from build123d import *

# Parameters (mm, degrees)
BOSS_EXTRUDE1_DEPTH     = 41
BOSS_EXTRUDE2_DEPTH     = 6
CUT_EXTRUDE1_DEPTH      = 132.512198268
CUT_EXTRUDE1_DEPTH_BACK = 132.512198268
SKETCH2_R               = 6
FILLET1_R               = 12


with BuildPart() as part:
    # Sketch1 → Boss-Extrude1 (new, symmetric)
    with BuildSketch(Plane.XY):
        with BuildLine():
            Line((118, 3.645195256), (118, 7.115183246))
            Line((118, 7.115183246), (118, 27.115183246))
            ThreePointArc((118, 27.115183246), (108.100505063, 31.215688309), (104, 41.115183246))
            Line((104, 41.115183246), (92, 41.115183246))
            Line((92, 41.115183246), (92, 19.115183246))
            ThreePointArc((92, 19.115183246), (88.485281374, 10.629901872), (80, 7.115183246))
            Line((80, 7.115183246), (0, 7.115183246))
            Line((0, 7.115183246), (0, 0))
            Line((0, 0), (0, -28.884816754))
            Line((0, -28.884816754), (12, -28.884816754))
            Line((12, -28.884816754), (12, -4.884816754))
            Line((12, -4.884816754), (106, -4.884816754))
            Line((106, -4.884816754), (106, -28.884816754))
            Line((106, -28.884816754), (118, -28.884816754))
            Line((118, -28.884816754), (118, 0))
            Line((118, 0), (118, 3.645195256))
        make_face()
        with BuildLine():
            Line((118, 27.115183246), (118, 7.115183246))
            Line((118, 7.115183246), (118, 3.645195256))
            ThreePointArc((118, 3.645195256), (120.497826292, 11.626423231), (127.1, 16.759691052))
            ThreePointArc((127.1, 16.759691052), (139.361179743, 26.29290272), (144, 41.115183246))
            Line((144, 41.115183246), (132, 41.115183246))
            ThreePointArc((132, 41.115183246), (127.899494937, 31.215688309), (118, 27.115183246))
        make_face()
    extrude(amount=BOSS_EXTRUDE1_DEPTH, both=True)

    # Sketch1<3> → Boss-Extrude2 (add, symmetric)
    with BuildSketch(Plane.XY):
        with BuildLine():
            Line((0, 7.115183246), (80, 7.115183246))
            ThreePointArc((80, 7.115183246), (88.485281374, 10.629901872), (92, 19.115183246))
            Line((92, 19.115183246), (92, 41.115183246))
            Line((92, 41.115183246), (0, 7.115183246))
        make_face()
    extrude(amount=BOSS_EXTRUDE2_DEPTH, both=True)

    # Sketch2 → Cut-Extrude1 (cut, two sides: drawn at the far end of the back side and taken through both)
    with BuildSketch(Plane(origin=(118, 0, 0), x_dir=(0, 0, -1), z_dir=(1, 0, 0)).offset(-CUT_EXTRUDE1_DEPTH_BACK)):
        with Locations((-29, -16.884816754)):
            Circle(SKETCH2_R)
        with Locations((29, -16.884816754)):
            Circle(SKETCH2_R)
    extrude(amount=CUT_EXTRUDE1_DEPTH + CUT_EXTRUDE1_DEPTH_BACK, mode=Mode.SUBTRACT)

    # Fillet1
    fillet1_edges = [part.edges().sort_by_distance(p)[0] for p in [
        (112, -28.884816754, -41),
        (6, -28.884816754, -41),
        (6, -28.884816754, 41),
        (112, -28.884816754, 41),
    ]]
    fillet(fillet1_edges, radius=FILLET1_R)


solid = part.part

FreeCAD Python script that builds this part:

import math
import FreeCAD as App
import Part
import Sketcher
Q = App.Units.Quantity


def edges_at(feature, points):
    """Names of the edges that pass closest to the given points."""
    edges = feature.Shape.Edges
    near = lambda p: min(range(len(edges)), key=lambda i: edges[i].distToShape(Part.Vertex(*p))[0])
    return sorted({f"Edge{near(p) + 1}" for p in points})

doc = App.newDocument("Part")
body = doc.addObject("PartDesign::Body", "Body")

# Sketch on XY plane
sketch1 = doc.addObject("Sketcher::SketchObject", "Sketch")
body.addObject(sketch1)
sketch1.AttachmentSupport = (doc.XY_Plane, [""])
sketch1.MapMode = "FlatFace"
sketch1.addGeometry([
    Part.ArcOfCircle(Part.Circle(App.Vector(118, 41, 0), App.Vector(0, 0, 1), 14), math.radians(180), math.radians(270)),  # 0
    Part.LineSegment(App.Vector(104, 41, 0), App.Vector(92, 41, 0)),  # 1
    Part.LineSegment(App.Vector(92, 41, 0), App.Vector(92, 19, 0)),  # 2
    Part.ArcOfCircle(Part.Circle(App.Vector(80, 19, 0), App.Vector(0, 0, 1), 12), math.radians(-90), math.radians(0)),  # 3
    Part.LineSegment(App.Vector(80, 7, 0), App.Vector(0, 7, 0)),  # 4
    Part.LineSegment(App.Vector(0, 7, 0), App.Vector(0, -29, 0)),  # 5
    Part.LineSegment(App.Vector(0, -29, 0), App.Vector(12, -29, 0)),  # 6
    Part.LineSegment(App.Vector(12, -29, 0), App.Vector(12, -5, 0)),  # 7
    Part.LineSegment(App.Vector(12, -5, 0), App.Vector(106, -5, 0)),  # 8
    Part.LineSegment(App.Vector(106, -5, 0), App.Vector(106, -29, 0)),  # 9
    Part.LineSegment(App.Vector(106, -29, 0), App.Vector(118, -29, 0)),  # 10
    Part.LineSegment(App.Vector(118, -29, 0), App.Vector(118, 4, 0)),  # 11
    Part.ArcOfCircle(Part.Circle(App.Vector(132, 4, 0), App.Vector(0, 0, 1), 14), math.radians(110), math.radians(180)),  # 12
    Part.ArcOfCircle(Part.Circle(App.Vector(118, 41, 0), App.Vector(0, 0, 1), 26), math.radians(-70), math.radians(0)),  # 13
    Part.LineSegment(App.Vector(144, 41, 0), App.Vector(132, 41, 0)),  # 14
    Part.ArcOfCircle(Part.Circle(App.Vector(118, 41, 0), App.Vector(0, 0, 1), 14), math.radians(-90), math.radians(0)),  # 15
], False)
sketch1.addConstraint([
    Sketcher.Constraint("Coincident", 0, 1, 1, 1),
    Sketcher.Constraint("Coincident", 1, 2, 2, 1),
    Sketcher.Constraint("Tangent", 2, 2, 3, 2),
    Sketcher.Constraint("Tangent", 3, 1, 4, 1),
    Sketcher.Constraint("Coincident", 4, 2, 5, 1),
    Sketcher.Constraint("Coincident", 5, 2, 6, 1),
    Sketcher.Constraint("Coincident", 6, 2, 7, 1),
    Sketcher.Constraint("Coincident", 7, 2, 8, 1),
    Sketcher.Constraint("Coincident", 8, 2, 9, 1),
    Sketcher.Constraint("Coincident", 9, 2, 10, 1),
    Sketcher.Constraint("Coincident", 10, 2, 11, 1),
    Sketcher.Constraint("Tangent", 11, 2, 12, 2),
    Sketcher.Constraint("Tangent", 12, 1, 13, 1),
    Sketcher.Constraint("Coincident", 13, 2, 14, 1),
    Sketcher.Constraint("Coincident", 14, 2, 15, 2),
    Sketcher.Constraint("Tangent", 15, 1, 0, 2),
    Sketcher.Constraint("Horizontal", 1),
    Sketcher.Constraint("Vertical", 2),
    Sketcher.Constraint("Horizontal", 4),
    Sketcher.Constraint("Vertical", 5),
    Sketcher.Constraint("Horizontal", 6),
    Sketcher.Constraint("Vertical", 7),
    Sketcher.Constraint("Horizontal", 8),
    Sketcher.Constraint("Vertical", 9),
    Sketcher.Constraint("Horizontal", 10),
    Sketcher.Constraint("Vertical", 11),
    Sketcher.Constraint("Horizontal", 14),
    Sketcher.Constraint("Coincident", 13, 3, 0, 3),
    Sketcher.Constraint("Equal", 0, 12),
    Sketcher.Constraint("Equal", 12, 15),
    Sketcher.Constraint("PointOnObject", 4, 2, -2),
    Sketcher.Constraint("Horizontal", 15, 3, 0, 1),
    Sketcher.Constraint("Horizontal", 6, 2, 9, 2),
    Sketcher.Constraint("Horizontal", 1, 2, 13, 2),
    Sketcher.Constraint("Vertical", 15, 3, 10, 2),
    Sketcher.Constraint("Vertical", 11, 2, 15, 1),
    Sketcher.Constraint("Equal", 1, 6),
    Sketcher.Constraint("Equal", 6, 10),
    Sketcher.Constraint("Equal", 10, 14),
    Sketcher.Constraint("Radius", 0, Q("14 mm")),
    Sketcher.Constraint("Radius", 3, Q("12 mm")),
    Sketcher.Constraint("Radius", 13, Q("26 mm")),
    Sketcher.Constraint("DistanceX", 4, 2, 4, 1, Q("80 mm")),
    Sketcher.Constraint("DistanceY", 2, 2, 2, 1, Q("22 mm")),
    Sketcher.Constraint("DistanceY", 5, 2, 5, 1, Q("36 mm")),
    Sketcher.Constraint("DistanceY", 7, 1, 7, 2, Q("24 mm")),
    Sketcher.Constraint("DistanceY", -1, 1, 12, 1, Q("16.759691 mm")),
])
pad1 = doc.addObject("PartDesign::Pad", "Pad")
body.addObject(pad1)
pad1.Profile = sketch1
pad1.Length = 82
pad1.Midplane = True

# Sketch on XY plane
sketch2 = doc.addObject("Sketcher::SketchObject", "Sketch001")
body.addObject(sketch2)
sketch2.AttachmentSupport = (doc.XY_Plane, [""])
sketch2.MapMode = "FlatFace"
sketch2.addGeometry([
    Part.LineSegment(App.Vector(0, 7, 0), App.Vector(80, 7, 0)),
    Part.ArcOfCircle(Part.Circle(App.Vector(80, 19, 0), App.Vector(0, 0, 1), 12), math.radians(-90), math.radians(0)),
    Part.LineSegment(App.Vector(92, 19, 0), App.Vector(92, 41, 0)),
    Part.LineSegment(App.Vector(92, 41, 0), App.Vector(0, 7, 0)),
], False)
sketch2.addConstraint([
    Sketcher.Constraint("Tangent", 0, 2, 1, 1),
    Sketcher.Constraint("Tangent", 1, 2, 2, 1),
    Sketcher.Constraint("Coincident", 2, 2, 3, 1),
    Sketcher.Constraint("Coincident", 3, 2, 0, 1),
    Sketcher.Constraint("Horizontal", 0),
    Sketcher.Constraint("Vertical", 2),
    Sketcher.Constraint("PointOnObject", 3, 2, -2),
    Sketcher.Constraint("Radius", 1, Q("12 mm")),
    Sketcher.Constraint("DistanceX", 0, 1, 0, 2, Q("80 mm")),
    Sketcher.Constraint("DistanceY", 2, 1, 2, 2, Q("22 mm")),
    Sketcher.Constraint("DistanceY", -1, 1, 1, 3, Q("19.115183 mm")),
])
pad2 = doc.addObject("PartDesign::Pad", "Pad001")
body.addObject(pad2)
pad2.Profile = sketch2
pad2.Length = 12
pad2.Midplane = True

# Sketch on YZ plane
sketch3 = doc.addObject("Sketcher::SketchObject", "Sketch002")
body.addObject(sketch3)
sketch3.AttachmentSupport = (doc.YZ_Plane, [""])
sketch3.MapMode = "FlatFace"
sketch3.AttachmentOffset = App.Placement(App.Vector(0, 0, 118), App.Rotation())
sketch3.addGeometry([
    Part.Circle(App.Vector(-17, 29, 0), App.Vector(0, 0, 1), 6),
    Part.Circle(App.Vector(-17, -29, 0), App.Vector(0, 0, 1), 6),
], False)
sketch3.addConstraint([
    Sketcher.Constraint("Equal", 0, 1),
    Sketcher.Constraint("Symmetric", 0, 3, 1, 3, -1),
    Sketcher.Constraint("Diameter", 0, Q("12 mm")),
    Sketcher.Constraint("DistanceY", -1, 1, 0, 3, Q("29 mm")),
    Sketcher.Constraint("DistanceX", 0, 3, -1, 1, Q("16.884817 mm")),
])
pocket1 = doc.addObject("PartDesign::Pocket", "Pocket")
body.addObject(pocket1)
pocket1.Profile = sketch3
pocket1.Type = "ThroughAll"
pocket1.Midplane = True
doc.recompute()

fillet = doc.addObject("PartDesign::Fillet", "Fillet")
body.addObject(fillet)
fillet.Base = (pocket1, edges_at(pocket1, [
    (112, -28.885, -41),
    (6, -28.885, -41),
    (6, -28.885, 41),
    (112, -28.885, 41),
]))
fillet.Radius = 12

doc.recompute()
